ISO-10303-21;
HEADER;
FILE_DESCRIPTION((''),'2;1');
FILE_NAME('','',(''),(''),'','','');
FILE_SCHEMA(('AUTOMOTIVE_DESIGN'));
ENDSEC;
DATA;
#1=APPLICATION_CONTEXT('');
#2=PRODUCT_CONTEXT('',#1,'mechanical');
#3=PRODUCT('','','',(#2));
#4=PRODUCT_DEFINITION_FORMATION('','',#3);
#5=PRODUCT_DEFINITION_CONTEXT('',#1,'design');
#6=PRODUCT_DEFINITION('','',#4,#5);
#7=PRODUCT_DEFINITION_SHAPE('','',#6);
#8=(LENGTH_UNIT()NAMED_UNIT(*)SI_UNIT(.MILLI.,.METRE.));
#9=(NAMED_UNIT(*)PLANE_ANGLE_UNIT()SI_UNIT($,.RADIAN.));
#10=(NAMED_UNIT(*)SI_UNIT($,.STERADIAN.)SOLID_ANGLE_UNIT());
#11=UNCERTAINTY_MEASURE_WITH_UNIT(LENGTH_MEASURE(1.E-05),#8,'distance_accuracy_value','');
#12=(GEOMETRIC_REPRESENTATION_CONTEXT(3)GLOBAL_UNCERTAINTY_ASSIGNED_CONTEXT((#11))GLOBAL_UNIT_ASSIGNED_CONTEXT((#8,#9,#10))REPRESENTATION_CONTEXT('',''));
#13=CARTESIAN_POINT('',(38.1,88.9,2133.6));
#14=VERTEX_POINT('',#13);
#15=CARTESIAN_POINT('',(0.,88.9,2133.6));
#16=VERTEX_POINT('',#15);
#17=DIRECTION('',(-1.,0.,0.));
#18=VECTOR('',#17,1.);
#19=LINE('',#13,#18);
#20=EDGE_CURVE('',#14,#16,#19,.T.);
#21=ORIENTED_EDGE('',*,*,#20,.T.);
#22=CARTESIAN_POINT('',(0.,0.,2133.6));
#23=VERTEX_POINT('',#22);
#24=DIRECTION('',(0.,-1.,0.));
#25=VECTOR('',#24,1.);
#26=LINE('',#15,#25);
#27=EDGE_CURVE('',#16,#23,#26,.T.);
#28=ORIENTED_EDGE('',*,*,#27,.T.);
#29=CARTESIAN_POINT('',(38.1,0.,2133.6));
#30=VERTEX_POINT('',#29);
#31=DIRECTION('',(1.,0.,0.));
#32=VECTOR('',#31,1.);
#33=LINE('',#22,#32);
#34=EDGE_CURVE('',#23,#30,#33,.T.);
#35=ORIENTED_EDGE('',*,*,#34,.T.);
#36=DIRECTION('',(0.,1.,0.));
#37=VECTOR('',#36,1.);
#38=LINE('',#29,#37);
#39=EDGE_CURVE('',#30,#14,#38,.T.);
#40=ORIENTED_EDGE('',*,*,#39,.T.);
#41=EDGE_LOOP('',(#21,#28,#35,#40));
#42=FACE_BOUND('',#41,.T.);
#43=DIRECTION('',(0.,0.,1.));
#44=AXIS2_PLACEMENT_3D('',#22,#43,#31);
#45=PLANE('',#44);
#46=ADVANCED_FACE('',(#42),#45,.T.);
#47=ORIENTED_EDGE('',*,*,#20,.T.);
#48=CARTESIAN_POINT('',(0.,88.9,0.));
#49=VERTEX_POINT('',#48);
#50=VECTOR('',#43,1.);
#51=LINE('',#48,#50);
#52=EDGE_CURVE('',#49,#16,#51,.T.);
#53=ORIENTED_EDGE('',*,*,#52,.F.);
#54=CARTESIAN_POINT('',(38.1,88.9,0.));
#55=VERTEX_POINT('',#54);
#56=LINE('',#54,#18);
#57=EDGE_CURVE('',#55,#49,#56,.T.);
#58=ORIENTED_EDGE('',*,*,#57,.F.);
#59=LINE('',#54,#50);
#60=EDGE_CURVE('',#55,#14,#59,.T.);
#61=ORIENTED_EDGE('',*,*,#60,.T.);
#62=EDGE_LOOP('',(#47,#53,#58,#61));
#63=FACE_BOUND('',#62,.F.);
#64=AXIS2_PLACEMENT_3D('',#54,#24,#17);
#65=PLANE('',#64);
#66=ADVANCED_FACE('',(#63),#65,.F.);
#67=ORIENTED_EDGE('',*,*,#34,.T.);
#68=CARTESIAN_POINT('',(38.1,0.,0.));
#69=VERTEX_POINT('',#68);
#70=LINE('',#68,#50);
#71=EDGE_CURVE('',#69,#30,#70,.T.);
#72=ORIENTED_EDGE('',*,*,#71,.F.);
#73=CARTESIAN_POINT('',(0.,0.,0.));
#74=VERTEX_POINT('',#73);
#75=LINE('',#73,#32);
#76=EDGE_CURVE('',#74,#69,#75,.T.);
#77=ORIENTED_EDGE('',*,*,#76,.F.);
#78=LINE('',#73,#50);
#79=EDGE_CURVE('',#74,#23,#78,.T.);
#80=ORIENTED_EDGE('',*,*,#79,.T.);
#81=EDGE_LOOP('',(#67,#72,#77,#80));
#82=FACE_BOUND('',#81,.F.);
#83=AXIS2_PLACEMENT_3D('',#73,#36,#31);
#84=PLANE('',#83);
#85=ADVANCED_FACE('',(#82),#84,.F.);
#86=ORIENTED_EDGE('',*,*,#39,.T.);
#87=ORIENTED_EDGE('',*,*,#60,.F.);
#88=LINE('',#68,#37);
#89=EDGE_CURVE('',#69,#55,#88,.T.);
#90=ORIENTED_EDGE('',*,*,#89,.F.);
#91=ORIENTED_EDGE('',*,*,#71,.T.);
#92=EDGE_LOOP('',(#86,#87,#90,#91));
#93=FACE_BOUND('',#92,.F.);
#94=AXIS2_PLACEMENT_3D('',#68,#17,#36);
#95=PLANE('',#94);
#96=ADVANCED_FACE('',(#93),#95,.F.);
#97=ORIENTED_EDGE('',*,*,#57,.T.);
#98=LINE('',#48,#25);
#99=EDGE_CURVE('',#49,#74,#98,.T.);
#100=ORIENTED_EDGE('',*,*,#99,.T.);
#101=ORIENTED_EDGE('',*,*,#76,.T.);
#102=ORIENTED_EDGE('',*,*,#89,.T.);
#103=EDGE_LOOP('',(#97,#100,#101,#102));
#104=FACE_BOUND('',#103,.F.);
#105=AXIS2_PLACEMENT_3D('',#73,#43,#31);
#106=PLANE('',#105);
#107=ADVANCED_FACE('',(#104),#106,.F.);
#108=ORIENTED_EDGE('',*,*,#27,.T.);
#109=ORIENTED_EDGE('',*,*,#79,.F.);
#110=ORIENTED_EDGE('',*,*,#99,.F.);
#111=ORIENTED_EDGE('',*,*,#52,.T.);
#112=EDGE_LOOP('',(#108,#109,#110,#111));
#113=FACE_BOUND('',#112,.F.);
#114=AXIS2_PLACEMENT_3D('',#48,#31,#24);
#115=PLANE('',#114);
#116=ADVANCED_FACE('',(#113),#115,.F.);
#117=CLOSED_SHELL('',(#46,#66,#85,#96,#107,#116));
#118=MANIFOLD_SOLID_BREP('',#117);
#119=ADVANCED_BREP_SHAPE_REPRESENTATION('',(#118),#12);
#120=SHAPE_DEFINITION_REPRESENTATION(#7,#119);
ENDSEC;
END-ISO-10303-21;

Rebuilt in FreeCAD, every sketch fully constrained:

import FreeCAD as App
import Part
import Sketcher
from FreeCAD import Vector
Q = App.Units.Quantity

doc = App.newDocument("Part")
body = doc.addObject("PartDesign::Body", "Body")

# Sketch on XY plane
sketch1 = doc.addObject("Sketcher::SketchObject", "Sketch")
body.addObject(sketch1)
sketch1.AttachmentSupport = (doc.XY_Plane, [""])
sketch1.MapMode = "FlatFace"
sketch1.addGeometry([
    Part.LineSegment(Vector(0, 89, 0), Vector(0, 0, 0)),
    Part.LineSegment(Vector(0, 0, 0), Vector(38, 0, 0)),
    Part.LineSegment(Vector(38, 0, 0), Vector(38, 89, 0)),
    Part.LineSegment(Vector(38, 89, 0), Vector(0, 89, 0)),
], False)
sketch1.addConstraint([
    Sketcher.Constraint("Coincident", 0, 2, 1, 1),
    Sketcher.Constraint("Coincident", 1, 2, 2, 1),
    Sketcher.Constraint("Coincident", 2, 2, 3, 1),
    Sketcher.Constraint("Coincident", 3, 2, 0, 1),
    Sketcher.Constraint("Vertical", 0),
    Sketcher.Constraint("Horizontal", 1),
    Sketcher.Constraint("Vertical", 2),
    Sketcher.Constraint("Horizontal", 3),
    Sketcher.Constraint("Coincident", 0, 2, -1, 1),
    Sketcher.Constraint("DistanceX", 1, 1, 1, 2, Q("1.5 in")),
    Sketcher.Constraint("DistanceY", 0, 2, 0, 1, Q("3.5 in")),
])
pad1 = doc.addObject("PartDesign::Pad", "Pad")
body.addObject(pad1)
pad1.Profile = sketch1
pad1.Length = Q("84 in")

doc.recompute()
